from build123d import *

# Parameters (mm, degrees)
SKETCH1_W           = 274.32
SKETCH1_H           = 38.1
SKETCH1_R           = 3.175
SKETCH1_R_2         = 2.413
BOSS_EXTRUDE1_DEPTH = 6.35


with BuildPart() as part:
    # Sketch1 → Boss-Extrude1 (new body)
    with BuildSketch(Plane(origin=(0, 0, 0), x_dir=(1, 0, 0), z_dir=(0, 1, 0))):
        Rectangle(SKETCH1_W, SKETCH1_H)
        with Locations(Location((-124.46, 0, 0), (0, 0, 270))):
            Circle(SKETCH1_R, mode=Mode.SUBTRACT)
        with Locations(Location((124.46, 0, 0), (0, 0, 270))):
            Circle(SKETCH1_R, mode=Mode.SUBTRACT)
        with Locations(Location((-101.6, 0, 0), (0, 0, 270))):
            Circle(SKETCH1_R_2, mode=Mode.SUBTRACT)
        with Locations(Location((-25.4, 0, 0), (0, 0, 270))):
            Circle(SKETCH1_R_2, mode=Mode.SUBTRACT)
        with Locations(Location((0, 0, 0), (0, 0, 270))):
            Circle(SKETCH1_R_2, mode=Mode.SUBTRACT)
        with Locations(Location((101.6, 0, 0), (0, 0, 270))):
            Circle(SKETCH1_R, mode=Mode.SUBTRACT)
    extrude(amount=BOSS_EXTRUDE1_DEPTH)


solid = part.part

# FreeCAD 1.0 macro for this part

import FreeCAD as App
import Part
import Sketcher

V = App.Vector
Q = App.Units.Quantity

doc = App.newDocument("Part")
body = doc.addObject("PartDesign::Body", "Body")

# Sketch on XZ plane
sketch1 = doc.addObject("Sketcher::SketchObject", "Sketch")
body.addObject(sketch1)
sketch1.AttachmentSupport = (doc.XZ_Plane, [""])
sketch1.MapMode = "FlatFace"
sketch1.addGeometry([
    Part.LineSegment(V(-137.16, -19.05, 0), V(-137.16, 19.05, 0)),  # 0
    Part.LineSegment(V(-137.16, 19.05, 0), V(137.16, 19.05, 0)),  # 1
    Part.LineSegment(V(137.16, 19.05, 0), V(137.16, -19.05, 0)),  # 2
    Part.LineSegment(V(137.16, -19.05, 0), V(-137.16, -19.05, 0)),  # 3
    Part.Circle(V(-124.46, 0, 0), V(0, 0, 1), 3.175),  # 4
    Part.Circle(V(-101.6, 0, 0), V(0, 0, 1), 2.413),  # 5
    Part.Circle(V(-25.4, 0, 0), V(0, 0, 1), 2.413),  # 6
    Part.Circle(V(0, 0, 0), V(0, 0, 1), 2.413),  # 7
    Part.Circle(V(101.6, 0, 0), V(0, 0, 1), 3.175),  # 8
    Part.Circle(V(124.46, 0, 0), V(0, 0, 1), 3.175),  # 9
], False)
sketch1.addConstraint([
    Sketcher.Constraint("Coincident", 0, 2, 1, 1),
    Sketcher.Constraint("Coincident", 1, 2, 2, 1),
    Sketcher.Constraint("Coincident", 2, 2, 3, 1),
    Sketcher.Constraint("Coincident", 3, 2, 0, 1),
    Sketcher.Constraint("Vertical", 0),
    Sketcher.Constraint("Horizontal", 1),
    Sketcher.Constraint("Vertical", 2),
    Sketcher.Constraint("Horizontal", 3),
    Sketcher.Constraint("Coincident", 7, 3, -1, 1),
    Sketcher.Constraint("Equal", 5, 6),
    Sketcher.Constraint("Equal", 6, 7),
    Sketcher.Constraint("Equal", 4, 8),
    Sketcher.Constraint("Equal", 8, 9),
    Sketcher.Constraint("Symmetric", 5, 3, 8, 3, -1, 1),
    Sketcher.Constraint("Symmetric", 4, 3, 9, 3, -1, 1),
    Sketcher.Constraint("Symmetric", 0, 2, 2, 2, -1, 1),
    Sketcher.Constraint("PointOnObject", 4, 3, -1),
    Sketcher.Constraint("PointOnObject", 5, 3, -1),
    Sketcher.Constraint("PointOnObject", 6, 3, -1),
    Sketcher.Constraint("Diameter", 4, Q("0.25 in")),
    Sketcher.Constraint("Diameter", 5, Q("0.19 in")),
    Sketcher.Constraint("DistanceX", 1, 1, 1, 2, Q("10.8 in")),
    Sketcher.Constraint("DistanceY", 0, 1, 0, 2, Q("1.5 in")),
    Sketcher.Constraint("DistanceX", 5, 3, -1, 1, Q("4 in")),
    Sketcher.Constraint("DistanceX", 6, 3, -1, 1, Q("1 in")),
    Sketcher.Constraint("DistanceX", 4, 3, -1, 1, Q("4.9 in")),
])
pad1 = doc.addObject("PartDesign::Pad", "Pad")
body.addObject(pad1)
pad1.Profile = sketch1
pad1.Length = Q("0.25 in")
pad1.Reversed = True

doc.recompute()
